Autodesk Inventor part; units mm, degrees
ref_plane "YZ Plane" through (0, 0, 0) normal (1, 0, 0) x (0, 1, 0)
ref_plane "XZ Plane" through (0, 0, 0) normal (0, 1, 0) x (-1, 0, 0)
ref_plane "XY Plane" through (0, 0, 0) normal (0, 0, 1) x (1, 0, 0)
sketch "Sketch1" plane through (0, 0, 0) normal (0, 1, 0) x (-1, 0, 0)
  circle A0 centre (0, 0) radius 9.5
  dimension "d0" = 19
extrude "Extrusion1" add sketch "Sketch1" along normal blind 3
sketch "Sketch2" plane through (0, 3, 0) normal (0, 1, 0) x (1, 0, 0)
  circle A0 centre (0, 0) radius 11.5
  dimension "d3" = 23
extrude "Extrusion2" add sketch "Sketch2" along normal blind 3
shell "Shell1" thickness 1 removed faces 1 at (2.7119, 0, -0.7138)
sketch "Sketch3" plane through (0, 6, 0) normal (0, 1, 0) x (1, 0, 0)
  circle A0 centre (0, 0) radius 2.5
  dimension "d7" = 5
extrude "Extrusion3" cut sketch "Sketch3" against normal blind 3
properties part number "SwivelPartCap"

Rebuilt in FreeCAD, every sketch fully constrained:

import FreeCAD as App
import Part
import Sketcher
from FreeCAD import Vector
Q = App.Units.Quantity


def faces_at(feature, points):
    """Names of the faces that lie closest to the given points."""
    faces = feature.Shape.Faces
    near = lambda p: min(range(len(faces)), key=lambda i: faces[i].distToShape(Part.Vertex(*p))[0])
    return sorted({f"Face{near(p) + 1}" for p in points})

doc = App.newDocument("Part")
params = doc.addObject("Spreadsheet::Sheet", "Params")
for row, (alias, value) in enumerate([
    ("sketch1_diameter", "19 mm"),
    ("pad1_length", "3 mm"),
    ("sketch2_diameter", "23 mm"),
    ("pad2_length", "3 mm"),
    ("thickness_wall", "1 mm"),
    ("sketch3_diameter", "5 mm"),
    ("pocket1_length", "3 mm"),
], start=1):
    params.set(f"A{row}", alias)
    params.set(f"B{row}", "=" + value)
    params.setAlias(f"B{row}", alias)

body = doc.addObject("PartDesign::Body", "Body")

sketch1 = doc.addObject("Sketcher::SketchObject", "Sketch")
body.addObject(sketch1)
sketch1.AttachmentSupport = (doc.XZ_Plane, [""])
sketch1.MapMode = "FlatFace"
sketch1.addGeometry(Part.Circle(Vector(0, 0, 0), Vector(0, 0, 1), 10), False)
sketch1.addConstraint([
    Sketcher.Constraint("Coincident", 0, 3, -1, 1),
    Sketcher.Constraint("Diameter", 0, Q("19 mm")),
])
sketch1.setExpression("Constraints[1]", "Params.sketch1_diameter")
pad1 = doc.addObject("PartDesign::Pad", "Pad")
body.addObject(pad1)
pad1.Profile = sketch1
pad1.setExpression("Length", "Params.pad1_length")
pad1.Reversed = True

sketch2 = doc.addObject("Sketcher::SketchObject", "Sketch001")
body.addObject(sketch2)
sketch2.AttachmentSupport = (doc.XZ_Plane, [""])
sketch2.MapMode = "FlatFace"
sketch2.AttachmentOffset = App.Placement(Vector(0, 0, -3), App.Rotation())
sketch2.addGeometry(Part.Circle(Vector(0, 0, 0), Vector(0, 0, 1), 12), False)
sketch2.addConstraint([
    Sketcher.Constraint("Coincident", 0, 3, -1, 1),
    Sketcher.Constraint("Diameter", 0, Q("23 mm")),
])
sketch2.setExpression("Constraints[1]", "Params.sketch2_diameter")
pad2 = doc.addObject("PartDesign::Pad", "Pad001")
body.addObject(pad2)
pad2.Profile = sketch2
pad2.setExpression("Length", "Params.pad2_length")
pad2.Reversed = True
doc.recompute()

thickness = doc.addObject("PartDesign::Thickness", "Thickness")
body.addObject(thickness)
thickness.Base = (pad2, faces_at(pad2, [(2.712, 0, -0.714)]))
thickness.setExpression("Value", "Params.thickness_wall")
thickness.Reversed = True
thickness.Join = "Intersection"

sketch3 = doc.addObject("Sketcher::SketchObject", "Sketch002")
body.addObject(sketch3)
sketch3.AttachmentSupport = (doc.XZ_Plane, [""])
sketch3.MapMode = "FlatFace"
sketch3.AttachmentOffset = App.Placement(Vector(0, 0, -6), App.Rotation())
sketch3.addGeometry(Part.Circle(Vector(0, 0, 0), Vector(0, 0, 1), 2.5), False)
sketch3.addConstraint([
    Sketcher.Constraint("Coincident", 0, 3, -1, 1),
    Sketcher.Constraint("Diameter", 0, Q("5 mm")),
])
sketch3.setExpression("Constraints[1]", "Params.sketch3_diameter")
pocket1 = doc.addObject("PartDesign::Pocket", "Pocket")
body.addObject(pocket1)
pocket1.Profile = sketch3
pocket1.setExpression("Length", "Params.pocket1_length")
pocket1.Reversed = True

doc.recompute()
